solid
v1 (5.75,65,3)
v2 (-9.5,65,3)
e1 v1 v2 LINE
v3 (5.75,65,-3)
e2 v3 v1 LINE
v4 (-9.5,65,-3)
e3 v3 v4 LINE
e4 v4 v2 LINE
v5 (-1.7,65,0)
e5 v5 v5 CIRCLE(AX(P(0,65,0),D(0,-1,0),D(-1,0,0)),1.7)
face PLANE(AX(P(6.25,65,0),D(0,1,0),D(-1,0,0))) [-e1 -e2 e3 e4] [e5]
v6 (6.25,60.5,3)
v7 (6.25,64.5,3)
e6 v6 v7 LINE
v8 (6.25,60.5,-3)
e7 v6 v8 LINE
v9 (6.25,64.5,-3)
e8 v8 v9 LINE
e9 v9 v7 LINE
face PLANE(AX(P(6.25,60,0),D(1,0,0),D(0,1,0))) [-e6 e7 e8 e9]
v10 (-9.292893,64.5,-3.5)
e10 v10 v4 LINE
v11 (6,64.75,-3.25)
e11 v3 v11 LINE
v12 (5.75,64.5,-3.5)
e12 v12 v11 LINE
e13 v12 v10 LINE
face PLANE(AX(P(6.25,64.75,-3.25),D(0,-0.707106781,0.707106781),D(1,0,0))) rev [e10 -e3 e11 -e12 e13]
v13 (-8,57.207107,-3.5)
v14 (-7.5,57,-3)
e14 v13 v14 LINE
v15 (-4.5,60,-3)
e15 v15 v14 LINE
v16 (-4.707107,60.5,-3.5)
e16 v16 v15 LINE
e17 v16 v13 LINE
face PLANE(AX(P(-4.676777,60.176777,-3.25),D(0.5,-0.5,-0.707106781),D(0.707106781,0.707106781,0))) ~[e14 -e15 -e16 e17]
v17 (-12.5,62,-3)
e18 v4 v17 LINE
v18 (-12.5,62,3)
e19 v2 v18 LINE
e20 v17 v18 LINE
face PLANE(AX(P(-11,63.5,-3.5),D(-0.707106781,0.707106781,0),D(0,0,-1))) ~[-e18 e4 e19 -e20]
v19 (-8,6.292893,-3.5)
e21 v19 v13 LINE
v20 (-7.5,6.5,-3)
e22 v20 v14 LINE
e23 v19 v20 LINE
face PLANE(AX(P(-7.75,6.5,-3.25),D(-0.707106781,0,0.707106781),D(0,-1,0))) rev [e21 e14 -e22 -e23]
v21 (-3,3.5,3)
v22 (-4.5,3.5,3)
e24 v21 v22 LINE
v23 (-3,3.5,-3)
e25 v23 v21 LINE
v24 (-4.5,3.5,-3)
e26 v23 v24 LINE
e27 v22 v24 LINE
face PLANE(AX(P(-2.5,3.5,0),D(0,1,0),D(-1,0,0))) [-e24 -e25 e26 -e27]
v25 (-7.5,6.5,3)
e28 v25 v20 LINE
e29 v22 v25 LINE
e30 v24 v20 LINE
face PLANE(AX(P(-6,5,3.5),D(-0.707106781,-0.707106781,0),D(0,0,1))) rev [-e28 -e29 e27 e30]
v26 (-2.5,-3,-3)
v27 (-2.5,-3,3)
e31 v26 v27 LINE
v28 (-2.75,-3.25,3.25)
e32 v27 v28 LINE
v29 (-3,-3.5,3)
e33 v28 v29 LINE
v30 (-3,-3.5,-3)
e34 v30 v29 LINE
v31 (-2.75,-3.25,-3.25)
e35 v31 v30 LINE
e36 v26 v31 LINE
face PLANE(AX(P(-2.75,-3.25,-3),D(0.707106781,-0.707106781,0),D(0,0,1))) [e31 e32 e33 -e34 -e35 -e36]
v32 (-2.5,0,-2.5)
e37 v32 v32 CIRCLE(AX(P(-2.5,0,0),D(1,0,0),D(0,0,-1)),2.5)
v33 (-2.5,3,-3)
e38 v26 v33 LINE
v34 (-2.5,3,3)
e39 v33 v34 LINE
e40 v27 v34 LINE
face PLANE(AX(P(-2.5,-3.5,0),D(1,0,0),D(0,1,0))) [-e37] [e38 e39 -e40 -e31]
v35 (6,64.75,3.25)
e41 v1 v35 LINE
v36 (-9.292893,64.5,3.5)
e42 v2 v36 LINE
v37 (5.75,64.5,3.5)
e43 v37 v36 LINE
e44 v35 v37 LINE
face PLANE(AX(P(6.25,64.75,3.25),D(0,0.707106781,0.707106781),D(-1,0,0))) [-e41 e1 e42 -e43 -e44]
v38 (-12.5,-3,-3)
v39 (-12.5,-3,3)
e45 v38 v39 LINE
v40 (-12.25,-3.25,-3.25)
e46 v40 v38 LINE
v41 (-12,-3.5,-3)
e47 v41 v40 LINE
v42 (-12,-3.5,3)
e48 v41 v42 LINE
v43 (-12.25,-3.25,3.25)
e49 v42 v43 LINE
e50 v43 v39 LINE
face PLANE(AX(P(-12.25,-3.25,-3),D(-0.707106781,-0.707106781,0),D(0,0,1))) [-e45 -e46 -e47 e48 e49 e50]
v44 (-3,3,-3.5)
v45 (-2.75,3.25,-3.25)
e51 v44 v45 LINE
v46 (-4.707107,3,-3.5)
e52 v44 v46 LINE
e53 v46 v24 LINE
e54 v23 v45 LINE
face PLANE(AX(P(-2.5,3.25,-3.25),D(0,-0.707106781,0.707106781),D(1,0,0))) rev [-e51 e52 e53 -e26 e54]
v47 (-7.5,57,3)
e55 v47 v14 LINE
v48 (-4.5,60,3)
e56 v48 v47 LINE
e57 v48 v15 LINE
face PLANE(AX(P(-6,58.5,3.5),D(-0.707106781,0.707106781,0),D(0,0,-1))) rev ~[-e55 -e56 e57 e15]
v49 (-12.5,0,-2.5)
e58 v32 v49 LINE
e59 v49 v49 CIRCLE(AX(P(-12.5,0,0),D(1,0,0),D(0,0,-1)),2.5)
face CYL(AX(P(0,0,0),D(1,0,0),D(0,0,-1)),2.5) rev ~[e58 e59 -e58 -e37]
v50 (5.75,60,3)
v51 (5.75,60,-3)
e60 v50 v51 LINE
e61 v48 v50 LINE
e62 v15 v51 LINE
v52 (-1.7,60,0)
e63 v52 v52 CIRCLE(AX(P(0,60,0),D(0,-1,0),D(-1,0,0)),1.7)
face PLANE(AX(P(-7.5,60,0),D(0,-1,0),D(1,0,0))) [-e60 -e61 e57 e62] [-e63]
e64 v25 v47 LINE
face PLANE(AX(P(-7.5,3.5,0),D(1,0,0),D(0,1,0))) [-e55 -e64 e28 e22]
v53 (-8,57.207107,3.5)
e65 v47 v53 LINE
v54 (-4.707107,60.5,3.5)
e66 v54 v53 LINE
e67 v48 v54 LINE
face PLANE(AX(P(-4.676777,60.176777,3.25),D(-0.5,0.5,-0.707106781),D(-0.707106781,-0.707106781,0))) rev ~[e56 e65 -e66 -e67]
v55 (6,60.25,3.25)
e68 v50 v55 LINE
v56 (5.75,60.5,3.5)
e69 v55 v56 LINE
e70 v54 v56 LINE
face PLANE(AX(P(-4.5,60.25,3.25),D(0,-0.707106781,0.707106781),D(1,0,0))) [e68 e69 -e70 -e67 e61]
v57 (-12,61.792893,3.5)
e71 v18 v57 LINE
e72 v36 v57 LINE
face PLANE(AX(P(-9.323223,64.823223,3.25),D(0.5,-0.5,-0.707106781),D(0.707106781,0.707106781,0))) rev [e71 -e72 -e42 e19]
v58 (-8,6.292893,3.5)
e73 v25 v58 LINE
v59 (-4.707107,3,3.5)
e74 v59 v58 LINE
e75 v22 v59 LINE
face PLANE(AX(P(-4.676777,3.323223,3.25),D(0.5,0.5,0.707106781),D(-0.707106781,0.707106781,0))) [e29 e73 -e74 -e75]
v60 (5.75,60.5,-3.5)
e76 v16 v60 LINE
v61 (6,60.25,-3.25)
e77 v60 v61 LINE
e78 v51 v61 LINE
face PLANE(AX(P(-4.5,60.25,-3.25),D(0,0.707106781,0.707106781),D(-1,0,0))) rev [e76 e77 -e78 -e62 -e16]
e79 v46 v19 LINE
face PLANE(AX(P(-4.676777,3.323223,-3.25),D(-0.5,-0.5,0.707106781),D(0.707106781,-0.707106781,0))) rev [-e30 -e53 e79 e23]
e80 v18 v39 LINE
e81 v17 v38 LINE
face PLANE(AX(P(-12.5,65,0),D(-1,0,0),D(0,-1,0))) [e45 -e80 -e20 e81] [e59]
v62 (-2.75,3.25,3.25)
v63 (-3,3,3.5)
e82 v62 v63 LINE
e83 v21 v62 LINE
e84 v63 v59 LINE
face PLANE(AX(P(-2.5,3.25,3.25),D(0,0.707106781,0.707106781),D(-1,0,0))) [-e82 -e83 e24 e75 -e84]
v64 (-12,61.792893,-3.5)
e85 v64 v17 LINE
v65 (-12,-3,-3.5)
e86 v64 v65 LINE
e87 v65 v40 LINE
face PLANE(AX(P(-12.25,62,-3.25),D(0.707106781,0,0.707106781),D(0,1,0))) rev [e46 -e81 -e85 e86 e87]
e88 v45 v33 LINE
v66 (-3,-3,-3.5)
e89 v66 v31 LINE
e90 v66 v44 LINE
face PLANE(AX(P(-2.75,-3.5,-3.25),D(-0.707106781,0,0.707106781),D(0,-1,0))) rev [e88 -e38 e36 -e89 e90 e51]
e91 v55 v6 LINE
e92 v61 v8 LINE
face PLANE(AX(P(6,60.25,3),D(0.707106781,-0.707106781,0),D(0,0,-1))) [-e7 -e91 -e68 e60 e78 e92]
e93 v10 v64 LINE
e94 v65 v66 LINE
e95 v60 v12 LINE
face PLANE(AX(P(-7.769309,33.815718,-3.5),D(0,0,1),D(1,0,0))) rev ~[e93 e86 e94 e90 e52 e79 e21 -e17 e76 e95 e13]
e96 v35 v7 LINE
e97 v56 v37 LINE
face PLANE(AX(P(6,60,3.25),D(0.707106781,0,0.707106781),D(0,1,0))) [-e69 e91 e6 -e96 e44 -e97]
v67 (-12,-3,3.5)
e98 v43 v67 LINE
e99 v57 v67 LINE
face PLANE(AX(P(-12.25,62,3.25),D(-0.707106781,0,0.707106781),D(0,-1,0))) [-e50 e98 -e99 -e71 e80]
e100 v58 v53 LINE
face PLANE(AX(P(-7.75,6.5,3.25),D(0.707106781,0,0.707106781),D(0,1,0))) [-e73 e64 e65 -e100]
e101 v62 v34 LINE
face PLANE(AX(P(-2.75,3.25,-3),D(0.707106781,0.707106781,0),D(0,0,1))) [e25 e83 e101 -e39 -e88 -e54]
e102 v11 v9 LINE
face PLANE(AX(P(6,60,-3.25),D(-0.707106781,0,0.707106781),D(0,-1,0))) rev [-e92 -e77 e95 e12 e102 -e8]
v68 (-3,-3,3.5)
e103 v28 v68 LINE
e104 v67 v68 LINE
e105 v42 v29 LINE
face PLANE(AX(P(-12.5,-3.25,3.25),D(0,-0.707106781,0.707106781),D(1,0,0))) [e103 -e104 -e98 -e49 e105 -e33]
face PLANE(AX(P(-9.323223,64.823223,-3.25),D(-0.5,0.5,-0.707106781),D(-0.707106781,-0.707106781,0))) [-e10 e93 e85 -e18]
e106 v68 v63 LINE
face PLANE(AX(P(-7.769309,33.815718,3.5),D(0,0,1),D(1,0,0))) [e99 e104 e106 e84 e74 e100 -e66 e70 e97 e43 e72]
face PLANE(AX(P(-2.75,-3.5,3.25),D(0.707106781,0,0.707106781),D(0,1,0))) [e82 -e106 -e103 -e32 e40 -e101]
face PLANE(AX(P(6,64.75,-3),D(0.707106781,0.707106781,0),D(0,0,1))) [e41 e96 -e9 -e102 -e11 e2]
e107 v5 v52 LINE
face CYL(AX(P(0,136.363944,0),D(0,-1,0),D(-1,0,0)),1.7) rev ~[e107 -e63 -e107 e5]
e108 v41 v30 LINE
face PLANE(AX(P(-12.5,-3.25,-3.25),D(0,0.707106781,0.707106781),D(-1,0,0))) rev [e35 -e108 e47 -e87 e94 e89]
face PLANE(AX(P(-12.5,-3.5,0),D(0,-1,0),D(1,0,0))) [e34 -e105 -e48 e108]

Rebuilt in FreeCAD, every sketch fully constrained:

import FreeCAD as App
import Part
import Sketcher

V = App.Vector
Q = App.Units.Quantity


def edges_at(feature, points):
    """Names of the edges that pass closest to the given points."""
    edges = feature.Shape.Edges
    near = lambda p: min(range(len(edges)), key=lambda i: edges[i].distToShape(Part.Vertex(*p))[0])
    return sorted({f"Edge{near(p) + 1}" for p in points})


def add_polygon(sketch, points):
    """Adds a closed chain of lines whose ends are joined by coincident constraints."""
    first, n = sketch.GeometryCount, len(points)
    for a, b in zip(points, points[1:] + points[:1]):
        sketch.addGeometry(Part.LineSegment(App.Vector(*a, 0), App.Vector(*b, 0)), False)
    for i in range(n):
        sketch.addConstraint(Sketcher.Constraint("Coincident", first + i, 2, first + (i + 1) % n, 1))

doc = App.newDocument("Part")
body = doc.addObject("PartDesign::Body", "Body")

# Sketch on XY plane
sketch1 = body.newObject("Sketcher::SketchObject", "Sketch")
sketch1.AttachmentSupport = (doc.getObject("XY_Plane"), [""])
sketch1.MapMode = "FlatFace"
add_polygon(sketch1, [(6, 60), (6, 65), (-12, 65), (-12, -4), (-2, -4), (-2, 4), (-8, 4), (-8, 60)])  # lines 0-7
sketch1.addConstraint(Sketcher.Constraint("Vertical", 0))
sketch1.addConstraint(Sketcher.Constraint("Horizontal", 1))
sketch1.addConstraint(Sketcher.Constraint("Vertical", 2))
sketch1.addConstraint(Sketcher.Constraint("Horizontal", 3))
sketch1.addConstraint(Sketcher.Constraint("Vertical", 4))
sketch1.addConstraint(Sketcher.Constraint("Horizontal", 5))
sketch1.addConstraint(Sketcher.Constraint("Vertical", 6))
sketch1.addConstraint(Sketcher.Constraint("Horizontal", 7))
sketch1.addConstraint(Sketcher.Constraint("Equal", 5, 0))
sketch1.addConstraint(Sketcher.Constraint("DistanceX", 3, 1, 3, 2, Q("10 mm")))
sketch1.addConstraint(Sketcher.Constraint("DistanceX", 5, 2, 5, 1, Q("5 mm")))
sketch1.addConstraint(Sketcher.Constraint("DistanceY", 4, 1, 4, 2, Q("7 mm")))
sketch1.addConstraint(Sketcher.Constraint("DistanceY", 2, 2, 2, 1, Q("68.5 mm")))
sketch1.addConstraint(Sketcher.Constraint("DistanceY", -1, 1, 0, 2, Q("65 mm")))
sketch1.addConstraint(Sketcher.Constraint("DistanceX", 1, 2, 1, 1, Q("18.75 mm")))
sketch1.addConstraint(Sketcher.Constraint("DistanceX", 1, 2, -1, 1, Q("12.5 mm")))
pad1 = body.newObject("PartDesign::Pad", "Pad")
pad1.Profile = sketch1
pad1.Length = 7
pad1.Midplane = True

# Sketch on YZ plane
sketch2 = body.newObject("Sketcher::SketchObject", "Sketch001")
sketch2.AttachmentSupport = (doc.getObject("YZ_Plane"), [""])
sketch2.MapMode = "FlatFace"
sketch2.addGeometry(Part.Circle(V(0, 0, 0), V(0, 0, 1), 2.5), False)
sketch2.addConstraint(Sketcher.Constraint("Coincident", 0, 3, -1, 1))
sketch2.addConstraint(Sketcher.Constraint("Diameter", 0, Q("5 mm")))
pocket1 = body.newObject("PartDesign::Pocket", "Pocket")
pocket1.Profile = sketch2
pocket1.Type = "ThroughAll"
pocket1.Midplane = True

# Sketch on XZ plane
sketch3 = body.newObject("Sketcher::SketchObject", "Sketch002")
sketch3.AttachmentSupport = (doc.getObject("XZ_Plane"), [""])
sketch3.MapMode = "FlatFace"
sketch3.AttachmentOffset = App.Placement(V(0, 0, -65), App.Rotation())
sketch3.addGeometry(Part.Circle(V(0, 0, 0), V(0, 0, 1), 1.7), False)
sketch3.addConstraint(Sketcher.Constraint("Coincident", 0, 3, -1, 1))
sketch3.addConstraint(Sketcher.Constraint("Diameter", 0, Q("3.4 mm")))
doc.recompute()
hole = body.newObject("PartDesign::Hole", "Hole")
hole.Profile = sketch3
hole.ThreadType = "None"
hole.Diameter = 3.4
hole.DepthType = "ThroughAll"
hole.Reversed = True
doc.recompute()

chamfer = body.newObject("PartDesign::Chamfer", "Chamfer")
chamfer.Base = (hole, edges_at(hole, [(-7.5, 60, 0), (-7.5, 3.5, 0), (-12.5, 65, 0)]))
chamfer.Size = 3
doc.recompute()

chamfer2 = body.newObject("PartDesign::Chamfer", "Chamfer001")
chamfer2.Base = (chamfer, edges_at(chamfer, [
    (-3.5, 3.5, -3.5),
    (-2.5, 0, -3.5),
    (-7.5, -3.5, -3.5),
    (6.25, 62.5, 3.5),
    (-12.5, 29.25, -3.5),
    (6.25, 62.5, -3.5),
    (-12.5, 29.25, 3.5),
    (-7.5, -3.5, 3.5),
    (-2.5, 0, 3.5),
    (-3.5, 3.5, 3.5),
    (-7.5, 31.75, -3.5),
    (-7.5, 31.75, 3.5),
    (0.875, 60, -3.5),
    (-1.625, 65, -3.5),
    (-11, 63.5, -3.5),
    (-1.625, 65, 3.5),
    (0.875, 60, 3.5),
    (-11, 63.5, 3.5),
    (-6, 5, -3.5),
    (-6, 5, 3.5),
    (-6, 58.5, -3.5),
    (-6, 58.5, 3.5),
]))
chamfer2.Size = 0.5
doc.recompute()

chamfer3 = body.newObject("PartDesign::Chamfer", "Chamfer002")
chamfer3.Base = (chamfer2, edges_at(chamfer2, [
    (-2.5, -3.5, 0),
    (-12.5, -3.5, 0),
    (-2.5, 3.5, 0),
    (6.25, 60, 0),
    (6.25, 65, 0),
]))
chamfer3.Size = 0.5

doc.recompute()
